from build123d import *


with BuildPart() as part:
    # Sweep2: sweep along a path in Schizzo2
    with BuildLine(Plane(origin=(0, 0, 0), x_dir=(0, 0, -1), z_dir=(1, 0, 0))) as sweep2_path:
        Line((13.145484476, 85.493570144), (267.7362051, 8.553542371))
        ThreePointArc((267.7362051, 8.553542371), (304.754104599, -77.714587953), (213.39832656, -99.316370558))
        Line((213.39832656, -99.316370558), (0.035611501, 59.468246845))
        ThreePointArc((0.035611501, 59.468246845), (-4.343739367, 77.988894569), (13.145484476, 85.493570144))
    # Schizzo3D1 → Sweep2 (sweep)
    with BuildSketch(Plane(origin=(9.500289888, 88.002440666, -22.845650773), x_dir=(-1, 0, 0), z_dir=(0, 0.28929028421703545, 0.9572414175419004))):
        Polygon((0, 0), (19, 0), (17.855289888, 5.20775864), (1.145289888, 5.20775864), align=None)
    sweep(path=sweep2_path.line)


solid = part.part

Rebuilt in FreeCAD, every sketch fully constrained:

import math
import FreeCAD as App
import Part
import Sketcher

V = App.Vector

doc = App.newDocument("Part")
body = doc.addObject("PartDesign::Body", "Body")

# Sketch on an angled plane
sketch1 = body.newObject("Sketcher::SketchObject", "Sketch")
sketch1.Placement = App.Placement(V(9.50029, 88.002441, -22.845651), App.Rotation(V(-1, 0, 0), V(0, -0.957241418, 0.289290284), V(0, 0.289290284, 0.957241418), "ZXY"))
sketch1.addGeometry(Part.LineSegment(V(0, 0, 0), V(19, 0, 0)), False)
sketch1.addGeometry(Part.LineSegment(V(19, 0, 0), V(18, 5, 0)), False)
sketch1.addGeometry(Part.LineSegment(V(18, 5, 0), V(1, 5, 0)), False)
sketch1.addGeometry(Part.LineSegment(V(1, 5, 0), V(0, 0, 0)), False)
sketch1.addConstraint(Sketcher.Constraint("Coincident", 0, 2, 1, 1))
sketch1.addConstraint(Sketcher.Constraint("Coincident", 1, 2, 2, 1))
sketch1.addConstraint(Sketcher.Constraint("Coincident", 2, 2, 3, 1))
sketch1.addConstraint(Sketcher.Constraint("Coincident", 3, 2, 0, 1))
sketch1.addConstraint(Sketcher.Constraint("Horizontal", 0))
sketch1.addConstraint(Sketcher.Constraint("Horizontal", 2))
sketch1.addConstraint(Sketcher.Constraint("Coincident", 3, 2, -1, 1))
sketch1.addConstraint(Sketcher.Constraint("DistanceX", 0, 1, 0, 2, 19.0))
sketch1.addConstraint(Sketcher.Constraint("DistanceX", 2, 2, 2, 1, 16.71))
sketch1.addConstraint(Sketcher.Constraint("DistanceX", -1, 1, 1, 2, 17.85529))
sketch1.addConstraint(Sketcher.Constraint("DistanceY", -1, 1, 1, 2, 5.207759))

# Sketch on YZ plane
sketch2 = body.newObject("Sketcher::SketchObject", "Sketch001")
sketch2.AttachmentSupport = (doc.getObject("YZ_Plane"), [""])
sketch2.MapMode = "FlatFace"
sketch2.addGeometry(Part.LineSegment(V(85, -13, 0), V(9, -268, 0)), False)
sketch2.addGeometry(Part.ArcOfCircle(Part.Circle(V(-50, -250, 0), V(0, 0, 1), 61), math.radians(143), math.radians(343)), False)
sketch2.addGeometry(Part.LineSegment(V(-99, -213, 0), V(59, 0, 0)), False)
sketch2.addGeometry(Part.ArcOfCircle(Part.Circle(V(71, -9, 0), V(0, 0, 1), 15), math.radians(-17), math.radians(143)), False)
sketch2.addConstraint(Sketcher.Constraint("Tangent", 0, 2, 1, 2))
sketch2.addConstraint(Sketcher.Constraint("Tangent", 1, 1, 2, 1))
sketch2.addConstraint(Sketcher.Constraint("Tangent", 2, 2, 3, 2))
sketch2.addConstraint(Sketcher.Constraint("Tangent", 3, 1, 0, 1))
sketch2.addConstraint(Sketcher.Constraint("Radius", 1, 61.308199))
sketch2.addConstraint(Sketcher.Constraint("Radius", 3, 14.791573))
sketch2.addConstraint(Sketcher.Constraint("DistanceY", 3, 3, -1, 1, 8.86645))
sketch2.addConstraint(Sketcher.Constraint("DistanceX", 1, 1, -1, 1, 99.316371))
sketch2.addConstraint(Sketcher.Constraint("DistanceY", 2, 2, -1, 1, 0.035612))
sketch2.addConstraint(Sketcher.Constraint("DistanceX", -1, 1, 3, 1, 85.49357))
doc.recompute()

additivepipe = body.newObject("PartDesign::AdditivePipe", "AdditivePipe")
additivepipe.Profile = sketch1
additivepipe.Spine = (sketch2, ["Edge1", "Edge2", "Edge3", "Edge4"])

doc.recompute()
